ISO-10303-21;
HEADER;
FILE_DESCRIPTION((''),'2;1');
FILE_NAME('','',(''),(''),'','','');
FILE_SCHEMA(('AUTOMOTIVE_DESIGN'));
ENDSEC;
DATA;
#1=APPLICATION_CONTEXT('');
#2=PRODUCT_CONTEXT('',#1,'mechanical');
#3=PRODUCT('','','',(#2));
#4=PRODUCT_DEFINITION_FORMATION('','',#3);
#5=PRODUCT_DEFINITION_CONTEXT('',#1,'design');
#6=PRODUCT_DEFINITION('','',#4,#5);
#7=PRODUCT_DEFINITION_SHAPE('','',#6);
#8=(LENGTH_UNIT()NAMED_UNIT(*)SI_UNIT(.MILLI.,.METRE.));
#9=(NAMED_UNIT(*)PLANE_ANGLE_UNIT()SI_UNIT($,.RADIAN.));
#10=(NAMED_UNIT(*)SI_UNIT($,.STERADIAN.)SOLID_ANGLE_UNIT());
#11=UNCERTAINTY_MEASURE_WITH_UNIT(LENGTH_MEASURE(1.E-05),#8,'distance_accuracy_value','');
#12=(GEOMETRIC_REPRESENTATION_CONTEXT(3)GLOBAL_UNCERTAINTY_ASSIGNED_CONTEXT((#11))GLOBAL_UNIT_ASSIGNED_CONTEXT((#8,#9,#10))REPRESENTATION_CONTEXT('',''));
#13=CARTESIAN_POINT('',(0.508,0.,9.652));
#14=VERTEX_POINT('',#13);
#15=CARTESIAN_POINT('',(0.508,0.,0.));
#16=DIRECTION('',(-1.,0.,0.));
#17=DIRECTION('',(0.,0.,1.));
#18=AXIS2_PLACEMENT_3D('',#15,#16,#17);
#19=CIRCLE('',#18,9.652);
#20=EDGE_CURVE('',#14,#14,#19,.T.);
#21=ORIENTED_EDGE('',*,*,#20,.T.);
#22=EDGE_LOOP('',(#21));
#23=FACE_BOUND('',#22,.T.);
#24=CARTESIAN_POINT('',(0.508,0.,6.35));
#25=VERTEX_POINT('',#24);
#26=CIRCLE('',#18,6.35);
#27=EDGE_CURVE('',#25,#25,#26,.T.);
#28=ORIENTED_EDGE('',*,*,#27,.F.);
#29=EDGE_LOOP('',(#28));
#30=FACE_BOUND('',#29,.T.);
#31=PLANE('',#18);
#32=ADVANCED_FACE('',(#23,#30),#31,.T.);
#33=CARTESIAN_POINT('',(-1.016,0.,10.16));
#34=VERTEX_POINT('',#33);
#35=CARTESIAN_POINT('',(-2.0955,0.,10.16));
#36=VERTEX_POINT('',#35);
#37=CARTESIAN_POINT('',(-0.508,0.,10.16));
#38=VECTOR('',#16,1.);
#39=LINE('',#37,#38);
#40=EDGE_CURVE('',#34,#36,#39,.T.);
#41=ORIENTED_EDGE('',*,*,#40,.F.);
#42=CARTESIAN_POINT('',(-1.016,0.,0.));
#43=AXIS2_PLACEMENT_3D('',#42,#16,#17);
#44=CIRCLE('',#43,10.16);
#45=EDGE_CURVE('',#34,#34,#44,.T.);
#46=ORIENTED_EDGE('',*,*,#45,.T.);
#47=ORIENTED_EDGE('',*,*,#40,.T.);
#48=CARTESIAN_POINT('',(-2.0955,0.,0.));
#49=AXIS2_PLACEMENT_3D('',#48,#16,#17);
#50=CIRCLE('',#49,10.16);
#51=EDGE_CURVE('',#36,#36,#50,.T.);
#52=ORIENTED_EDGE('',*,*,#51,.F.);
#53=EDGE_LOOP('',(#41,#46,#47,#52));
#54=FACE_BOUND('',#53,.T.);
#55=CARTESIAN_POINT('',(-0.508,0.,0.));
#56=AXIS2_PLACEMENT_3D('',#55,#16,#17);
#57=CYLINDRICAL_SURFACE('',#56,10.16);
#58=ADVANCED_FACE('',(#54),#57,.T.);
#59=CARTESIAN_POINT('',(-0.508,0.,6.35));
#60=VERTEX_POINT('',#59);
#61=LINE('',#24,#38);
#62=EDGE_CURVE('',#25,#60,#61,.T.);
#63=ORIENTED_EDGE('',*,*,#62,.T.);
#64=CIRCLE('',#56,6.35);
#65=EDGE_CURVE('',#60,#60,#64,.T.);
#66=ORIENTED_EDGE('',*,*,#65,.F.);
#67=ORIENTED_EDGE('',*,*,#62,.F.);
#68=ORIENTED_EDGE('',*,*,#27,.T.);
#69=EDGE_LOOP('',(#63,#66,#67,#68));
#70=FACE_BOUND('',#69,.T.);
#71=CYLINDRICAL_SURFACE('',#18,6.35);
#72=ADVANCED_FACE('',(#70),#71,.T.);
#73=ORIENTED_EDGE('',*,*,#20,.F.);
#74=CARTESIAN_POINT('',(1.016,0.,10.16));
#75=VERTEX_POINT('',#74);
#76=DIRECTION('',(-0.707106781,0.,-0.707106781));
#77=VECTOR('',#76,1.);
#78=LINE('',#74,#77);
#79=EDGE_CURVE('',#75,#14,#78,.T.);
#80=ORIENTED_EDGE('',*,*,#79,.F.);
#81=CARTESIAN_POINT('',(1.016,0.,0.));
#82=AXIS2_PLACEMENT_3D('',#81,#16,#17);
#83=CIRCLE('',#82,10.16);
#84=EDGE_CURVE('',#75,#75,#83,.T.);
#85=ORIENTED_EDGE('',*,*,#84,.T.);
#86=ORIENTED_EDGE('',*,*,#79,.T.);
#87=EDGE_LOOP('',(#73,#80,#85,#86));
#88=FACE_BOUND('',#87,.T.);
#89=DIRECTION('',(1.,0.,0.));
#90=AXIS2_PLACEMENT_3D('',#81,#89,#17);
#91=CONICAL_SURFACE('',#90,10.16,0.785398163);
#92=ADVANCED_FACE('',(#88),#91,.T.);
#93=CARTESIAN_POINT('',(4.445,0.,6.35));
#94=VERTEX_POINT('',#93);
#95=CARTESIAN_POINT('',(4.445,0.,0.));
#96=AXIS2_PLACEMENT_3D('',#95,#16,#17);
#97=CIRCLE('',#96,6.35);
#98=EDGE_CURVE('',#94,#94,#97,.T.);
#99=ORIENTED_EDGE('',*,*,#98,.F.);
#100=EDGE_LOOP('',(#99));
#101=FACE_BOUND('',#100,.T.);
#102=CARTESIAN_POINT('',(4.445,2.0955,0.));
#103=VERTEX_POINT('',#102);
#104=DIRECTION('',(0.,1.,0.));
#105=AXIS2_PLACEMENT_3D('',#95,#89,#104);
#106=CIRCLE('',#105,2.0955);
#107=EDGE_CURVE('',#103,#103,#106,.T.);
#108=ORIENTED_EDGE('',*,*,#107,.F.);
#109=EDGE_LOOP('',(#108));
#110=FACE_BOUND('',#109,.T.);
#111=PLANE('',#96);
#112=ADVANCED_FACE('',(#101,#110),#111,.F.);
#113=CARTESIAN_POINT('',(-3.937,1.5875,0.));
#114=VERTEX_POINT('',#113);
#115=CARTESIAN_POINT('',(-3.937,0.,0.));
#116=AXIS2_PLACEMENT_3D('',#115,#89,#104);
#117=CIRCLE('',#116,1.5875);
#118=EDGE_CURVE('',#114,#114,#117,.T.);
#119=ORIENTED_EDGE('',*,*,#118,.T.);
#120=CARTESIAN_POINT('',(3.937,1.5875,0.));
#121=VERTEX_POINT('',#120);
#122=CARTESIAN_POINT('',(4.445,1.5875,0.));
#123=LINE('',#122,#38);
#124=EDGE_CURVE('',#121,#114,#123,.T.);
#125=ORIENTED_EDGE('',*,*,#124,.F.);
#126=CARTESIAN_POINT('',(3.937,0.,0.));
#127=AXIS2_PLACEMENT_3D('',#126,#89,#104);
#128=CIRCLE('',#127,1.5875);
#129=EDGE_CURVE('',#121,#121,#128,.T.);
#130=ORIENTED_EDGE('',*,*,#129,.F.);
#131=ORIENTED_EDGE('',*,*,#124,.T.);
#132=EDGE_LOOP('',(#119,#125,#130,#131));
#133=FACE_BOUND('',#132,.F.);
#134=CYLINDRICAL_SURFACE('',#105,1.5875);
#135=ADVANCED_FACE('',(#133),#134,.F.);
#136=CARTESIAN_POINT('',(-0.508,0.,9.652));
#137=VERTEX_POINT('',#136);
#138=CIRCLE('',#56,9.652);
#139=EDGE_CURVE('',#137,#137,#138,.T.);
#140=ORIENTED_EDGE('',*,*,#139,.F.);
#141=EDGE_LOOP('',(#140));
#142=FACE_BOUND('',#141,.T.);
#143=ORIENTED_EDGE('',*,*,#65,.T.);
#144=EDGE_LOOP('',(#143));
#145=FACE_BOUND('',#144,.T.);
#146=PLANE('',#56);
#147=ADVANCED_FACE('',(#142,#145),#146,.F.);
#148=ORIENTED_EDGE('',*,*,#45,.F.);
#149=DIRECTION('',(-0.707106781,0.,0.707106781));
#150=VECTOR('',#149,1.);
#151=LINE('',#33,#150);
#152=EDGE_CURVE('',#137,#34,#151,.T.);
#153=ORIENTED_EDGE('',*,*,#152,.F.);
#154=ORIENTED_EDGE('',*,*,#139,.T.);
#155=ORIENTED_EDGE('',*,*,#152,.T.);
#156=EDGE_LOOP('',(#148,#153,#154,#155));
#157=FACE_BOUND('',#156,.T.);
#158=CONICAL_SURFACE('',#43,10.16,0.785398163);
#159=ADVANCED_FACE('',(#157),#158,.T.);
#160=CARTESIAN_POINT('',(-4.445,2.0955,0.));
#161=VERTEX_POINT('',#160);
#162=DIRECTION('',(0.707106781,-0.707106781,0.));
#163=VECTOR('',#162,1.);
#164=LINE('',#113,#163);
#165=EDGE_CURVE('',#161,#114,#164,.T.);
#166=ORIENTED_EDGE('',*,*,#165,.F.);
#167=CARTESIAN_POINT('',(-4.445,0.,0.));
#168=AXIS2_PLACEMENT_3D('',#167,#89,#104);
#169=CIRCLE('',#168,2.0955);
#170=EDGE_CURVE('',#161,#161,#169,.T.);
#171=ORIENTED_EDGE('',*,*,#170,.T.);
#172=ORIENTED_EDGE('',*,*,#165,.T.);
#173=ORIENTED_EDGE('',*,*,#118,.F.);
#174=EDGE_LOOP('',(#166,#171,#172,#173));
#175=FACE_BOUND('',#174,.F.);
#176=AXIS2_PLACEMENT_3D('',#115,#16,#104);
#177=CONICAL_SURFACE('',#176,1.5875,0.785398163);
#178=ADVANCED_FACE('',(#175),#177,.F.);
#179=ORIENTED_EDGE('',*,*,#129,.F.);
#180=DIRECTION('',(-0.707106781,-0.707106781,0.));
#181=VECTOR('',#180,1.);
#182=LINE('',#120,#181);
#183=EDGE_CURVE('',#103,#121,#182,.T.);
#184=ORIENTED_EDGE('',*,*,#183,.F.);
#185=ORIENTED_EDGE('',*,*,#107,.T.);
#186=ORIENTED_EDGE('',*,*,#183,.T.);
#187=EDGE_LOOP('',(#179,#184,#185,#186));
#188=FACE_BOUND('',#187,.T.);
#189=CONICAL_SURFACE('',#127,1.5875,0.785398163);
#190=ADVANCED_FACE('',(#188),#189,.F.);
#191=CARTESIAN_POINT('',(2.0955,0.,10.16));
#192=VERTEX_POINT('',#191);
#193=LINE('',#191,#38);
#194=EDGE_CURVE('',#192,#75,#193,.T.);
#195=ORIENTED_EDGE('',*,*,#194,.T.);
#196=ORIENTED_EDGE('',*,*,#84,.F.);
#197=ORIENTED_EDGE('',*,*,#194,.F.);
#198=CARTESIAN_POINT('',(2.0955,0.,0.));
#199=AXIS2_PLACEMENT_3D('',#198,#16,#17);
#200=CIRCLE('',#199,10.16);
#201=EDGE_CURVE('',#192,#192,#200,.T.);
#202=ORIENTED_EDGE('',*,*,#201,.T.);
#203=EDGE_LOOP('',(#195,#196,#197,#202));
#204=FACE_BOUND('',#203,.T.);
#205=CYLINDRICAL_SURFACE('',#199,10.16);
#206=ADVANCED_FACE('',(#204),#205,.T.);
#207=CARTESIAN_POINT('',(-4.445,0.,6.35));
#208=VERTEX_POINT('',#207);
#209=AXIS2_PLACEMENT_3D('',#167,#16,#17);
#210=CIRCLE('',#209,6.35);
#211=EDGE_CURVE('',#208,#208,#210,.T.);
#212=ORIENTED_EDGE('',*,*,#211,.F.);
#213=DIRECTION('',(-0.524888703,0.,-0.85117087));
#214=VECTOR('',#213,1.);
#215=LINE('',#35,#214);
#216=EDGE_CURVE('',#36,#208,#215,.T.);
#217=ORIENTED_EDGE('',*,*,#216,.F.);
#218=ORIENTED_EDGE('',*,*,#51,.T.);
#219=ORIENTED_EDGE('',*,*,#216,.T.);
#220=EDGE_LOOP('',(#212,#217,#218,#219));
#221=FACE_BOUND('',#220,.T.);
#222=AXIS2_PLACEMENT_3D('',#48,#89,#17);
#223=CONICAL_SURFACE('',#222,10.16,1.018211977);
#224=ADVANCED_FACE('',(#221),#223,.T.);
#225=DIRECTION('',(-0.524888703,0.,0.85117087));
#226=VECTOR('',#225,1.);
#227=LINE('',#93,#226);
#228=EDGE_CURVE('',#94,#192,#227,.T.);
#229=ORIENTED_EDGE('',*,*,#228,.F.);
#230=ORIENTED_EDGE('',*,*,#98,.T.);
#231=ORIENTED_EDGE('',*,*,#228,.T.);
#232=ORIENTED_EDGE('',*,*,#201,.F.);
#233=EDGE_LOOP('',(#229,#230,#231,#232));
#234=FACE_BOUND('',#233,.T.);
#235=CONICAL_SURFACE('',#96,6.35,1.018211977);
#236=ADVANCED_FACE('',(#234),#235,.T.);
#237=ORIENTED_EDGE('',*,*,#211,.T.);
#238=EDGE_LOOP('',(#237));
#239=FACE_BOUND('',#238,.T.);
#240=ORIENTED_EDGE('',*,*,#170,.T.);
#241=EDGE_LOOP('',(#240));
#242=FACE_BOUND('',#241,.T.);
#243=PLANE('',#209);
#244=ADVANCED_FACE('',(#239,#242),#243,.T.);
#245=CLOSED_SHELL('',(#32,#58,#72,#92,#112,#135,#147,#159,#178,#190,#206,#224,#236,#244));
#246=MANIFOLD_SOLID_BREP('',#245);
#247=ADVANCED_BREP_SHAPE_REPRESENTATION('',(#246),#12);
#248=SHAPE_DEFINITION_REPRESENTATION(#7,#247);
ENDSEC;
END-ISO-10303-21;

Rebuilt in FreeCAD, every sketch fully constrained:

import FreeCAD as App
import Part
import Sketcher
Q = App.Units.Quantity


def edges_at(feature, points):
    """Names of the edges that pass closest to the given points."""
    edges = feature.Shape.Edges
    near = lambda p: min(range(len(edges)), key=lambda i: edges[i].distToShape(Part.Vertex(*p))[0])
    return sorted({f"Edge{near(p) + 1}" for p in points})


def add_polygon(sketch, points):
    """Adds a closed chain of lines whose ends are joined by coincident constraints."""
    first, n = sketch.GeometryCount, len(points)
    for a, b in zip(points, points[1:] + points[:1]):
        sketch.addGeometry(Part.LineSegment(App.Vector(*a, 0), App.Vector(*b, 0)), False)
    for i in range(n):
        sketch.addConstraint(Sketcher.Constraint("Coincident", first + i, 2, first + (i + 1) % n, 1))

doc = App.newDocument("Part")
body = doc.addObject("PartDesign::Body", "Body")

# Sketch on XZ plane
sketch1 = doc.addObject("Sketcher::SketchObject", "Sketch")
body.addObject(sketch1)
sketch1.AttachmentSupport = (doc.XZ_Plane, [""])
sketch1.MapMode = "FlatFace"
add_polygon(sketch1, [(0.5, 6.3), (-0.5, 6.3), (-0.5, 10.2), (-2.1, 10.2), (-4.4, 6.3), (-4.4, 0), (4.4, 0), (4.4, 6.3), (2.1, 10.2), (0.5, 10.2)])  # lines 0-9
sketch1.addConstraint(Sketcher.Constraint("Horizontal", 0))
sketch1.addConstraint(Sketcher.Constraint("Vertical", 1))
sketch1.addConstraint(Sketcher.Constraint("Horizontal", 2))
sketch1.addConstraint(Sketcher.Constraint("Vertical", 4))
sketch1.addConstraint(Sketcher.Constraint("Horizontal", 5))
sketch1.addConstraint(Sketcher.Constraint("Vertical", 6))
sketch1.addConstraint(Sketcher.Constraint("Horizontal", 8))
sketch1.addConstraint(Sketcher.Constraint("Vertical", 9))
sketch1.addConstraint(Sketcher.Constraint("Symmetric", 4, 2, 5, 2, -1, 1))
sketch1.addConstraint(Sketcher.Constraint("Symmetric", 2, 2, 7, 2, -2))
sketch1.addConstraint(Sketcher.Constraint("Horizontal", 0, 2, 3, 2))
sketch1.addConstraint(Sketcher.Constraint("Horizontal", 3, 2, 6, 2))
sketch1.addConstraint(Sketcher.Constraint("Equal", 2, 8))
sketch1.addConstraint(Sketcher.Constraint("DistanceX", 0, 2, 0, 1, Q("0.04 in")))
sketch1.addConstraint(Sketcher.Constraint("DistanceX", 5, 1, 5, 2, Q("0.35 in")))
sketch1.addConstraint(Sketcher.Constraint("DistanceY", 1, 1, 1, 2, Q("0.15 in")))
sketch1.addConstraint(Sketcher.Constraint("DistanceY", 4, 2, 4, 1, Q("0.25 in")))
sketch1.addConstraint(Sketcher.Constraint("DistanceX", 2, 2, 2, 1, Q("0.0625 in")))
revolution = doc.addObject("PartDesign::Revolution", "Revolution")
body.addObject(revolution)
revolution.Profile = sketch1
revolution.ReferenceAxis = (sketch1, ["H_Axis"])
revolution.Angle = 360

# Sketch on YZ plane
sketch2 = doc.addObject("Sketcher::SketchObject", "Sketch001")
body.addObject(sketch2)
sketch2.AttachmentSupport = (doc.YZ_Plane, [""])
sketch2.MapMode = "FlatFace"
sketch2.AttachmentOffset = App.Placement(App.Vector(0, 0, 0.175 * 25.4), App.Rotation())
sketch2.addGeometry(Part.Circle(App.Vector(0, 0, 0), App.Vector(0, 0, 1), 1.6), False)
sketch2.addConstraint(Sketcher.Constraint("Coincident", 0, 3, -1, 1))
sketch2.addConstraint(Sketcher.Constraint("Diameter", 0, Q("0.125 in")))
pocket1 = doc.addObject("PartDesign::Pocket", "Pocket")
body.addObject(pocket1)
pocket1.Profile = sketch2
pocket1.Type = "ThroughAll"
doc.recompute()

chamfer = doc.addObject("PartDesign::Chamfer", "Chamfer")
body.addObject(chamfer)
chamfer.Base = (pocket1, edges_at(pocket1, [(-4.445, -1.587, 0), (4.445, -1.587, 0)]))
chamfer.Size = Q("0.02 in")
doc.recompute()

chamfer2 = doc.addObject("PartDesign::Chamfer", "Chamfer001")
body.addObject(chamfer2)
chamfer2.Base = (chamfer, edges_at(chamfer, [(-0.508, 0, -10.16), (0.508, 0, -10.16)]))
chamfer2.Size = Q("0.02 in")

doc.recompute()
